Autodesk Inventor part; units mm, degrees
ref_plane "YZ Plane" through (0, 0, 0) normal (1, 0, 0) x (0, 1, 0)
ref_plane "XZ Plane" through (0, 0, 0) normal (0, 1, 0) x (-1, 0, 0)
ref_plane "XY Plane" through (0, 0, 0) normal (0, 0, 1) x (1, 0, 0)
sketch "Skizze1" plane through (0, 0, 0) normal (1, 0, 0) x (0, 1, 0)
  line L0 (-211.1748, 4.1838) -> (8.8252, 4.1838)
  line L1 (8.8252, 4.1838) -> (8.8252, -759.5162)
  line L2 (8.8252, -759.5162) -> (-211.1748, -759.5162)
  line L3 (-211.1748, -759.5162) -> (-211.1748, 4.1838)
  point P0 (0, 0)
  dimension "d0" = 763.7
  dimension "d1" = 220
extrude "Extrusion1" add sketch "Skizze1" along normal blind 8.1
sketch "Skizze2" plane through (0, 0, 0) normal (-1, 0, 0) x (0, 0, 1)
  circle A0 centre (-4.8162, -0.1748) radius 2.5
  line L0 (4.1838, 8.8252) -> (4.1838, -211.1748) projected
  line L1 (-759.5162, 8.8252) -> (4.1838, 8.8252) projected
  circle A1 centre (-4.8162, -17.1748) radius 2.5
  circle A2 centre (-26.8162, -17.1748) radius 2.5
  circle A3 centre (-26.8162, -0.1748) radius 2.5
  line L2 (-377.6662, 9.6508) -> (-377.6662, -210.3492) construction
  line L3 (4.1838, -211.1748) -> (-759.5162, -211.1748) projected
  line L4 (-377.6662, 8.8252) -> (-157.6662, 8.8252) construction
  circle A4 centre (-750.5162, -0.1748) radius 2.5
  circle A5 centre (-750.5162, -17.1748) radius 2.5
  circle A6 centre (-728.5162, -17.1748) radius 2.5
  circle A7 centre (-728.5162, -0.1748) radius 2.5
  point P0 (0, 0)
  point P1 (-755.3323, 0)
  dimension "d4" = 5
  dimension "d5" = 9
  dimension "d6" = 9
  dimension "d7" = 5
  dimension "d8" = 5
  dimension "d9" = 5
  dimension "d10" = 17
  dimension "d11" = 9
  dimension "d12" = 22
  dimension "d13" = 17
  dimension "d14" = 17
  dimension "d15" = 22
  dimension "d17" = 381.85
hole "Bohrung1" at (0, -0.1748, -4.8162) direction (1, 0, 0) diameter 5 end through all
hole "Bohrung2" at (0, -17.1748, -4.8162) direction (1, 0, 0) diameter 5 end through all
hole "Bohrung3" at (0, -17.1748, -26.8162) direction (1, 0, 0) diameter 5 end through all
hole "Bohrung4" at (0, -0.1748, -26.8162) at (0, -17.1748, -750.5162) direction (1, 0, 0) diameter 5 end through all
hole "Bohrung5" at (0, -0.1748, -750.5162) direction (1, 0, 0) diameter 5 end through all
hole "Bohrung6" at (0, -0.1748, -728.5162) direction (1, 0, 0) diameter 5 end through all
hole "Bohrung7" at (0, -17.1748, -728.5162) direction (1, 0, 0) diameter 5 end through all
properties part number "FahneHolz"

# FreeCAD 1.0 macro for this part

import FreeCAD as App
import Part
import Sketcher
from FreeCAD import Vector

doc = App.newDocument("Part")
body = doc.addObject("PartDesign::Body", "Body")

# Sketch on YZ plane
sketch1 = body.newObject("Sketcher::SketchObject", "Sketch")
sketch1.AttachmentSupport = (doc.getObject("YZ_Plane"), [""])
sketch1.MapMode = "FlatFace"
sketch1.addGeometry([
    Part.LineSegment(Vector(8.8252, 4.1838, 0), Vector(-211.1748, 4.1838, 0)),
    Part.LineSegment(Vector(-211.1748, 4.1838, 0), Vector(-211.1748, -759.5162, 0)),
    Part.LineSegment(Vector(-211.1748, -759.5162, 0), Vector(8.8252, -759.5162, 0)),
    Part.LineSegment(Vector(8.8252, -759.5162, 0), Vector(8.8252, 4.1838, 0)),
], False)
sketch1.addConstraint([
    Sketcher.Constraint("Coincident", 0, 2, 1, 1),
    Sketcher.Constraint("Coincident", 1, 2, 2, 1),
    Sketcher.Constraint("Coincident", 2, 2, 3, 1),
    Sketcher.Constraint("Coincident", 3, 2, 0, 1),
    Sketcher.Constraint("Horizontal", 0),
    Sketcher.Constraint("Vertical", 1),
    Sketcher.Constraint("Horizontal", 2),
    Sketcher.Constraint("Vertical", 3),
    Sketcher.Constraint("DistanceX", 0, 2, 0, 1, 220.0),
    Sketcher.Constraint("DistanceY", 1, 2, 1, 1, 763.7),
    Sketcher.Constraint("DistanceX", 0, 2, -1, 1, 211.1748),
    Sketcher.Constraint("DistanceY", -1, 1, 0, 2, 4.1838),
])
pad1 = body.newObject("PartDesign::Pad", "Pad")
pad1.Profile = sketch1
pad1.Length = 8.1

# Sketch on YZ plane
sketch2 = body.newObject("Sketcher::SketchObject", "Sketch001")
sketch2.AttachmentSupport = (doc.getObject("YZ_Plane"), [""])
sketch2.MapMode = "FlatFace"
sketch2.addGeometry(Part.Circle(Vector(-0.1748, -4.8162, 0), Vector(0, 0, 1), 2.5), False)
sketch2.addConstraint([
    Sketcher.Constraint("Diameter", 0, 5.0),
    Sketcher.Constraint("DistanceX", 0, 3, -1, 1, 0.1748),
    Sketcher.Constraint("DistanceY", 0, 3, -1, 1, 4.8162),
])
doc.recompute()
hole = body.newObject("PartDesign::Hole", "Hole")
hole.Profile = sketch2
hole.ThreadType = "None"
hole.Diameter = 5
hole.DepthType = "ThroughAll"
hole.Reversed = True

# Sketch on YZ plane
sketch3 = body.newObject("Sketcher::SketchObject", "Sketch002")
sketch3.AttachmentSupport = (doc.getObject("YZ_Plane"), [""])
sketch3.MapMode = "FlatFace"
sketch3.addGeometry(Part.Circle(Vector(-17.1748, -4.8162, 0), Vector(0, 0, 1), 2.5), False)
sketch3.addConstraint([
    Sketcher.Constraint("Diameter", 0, 5.0),
    Sketcher.Constraint("DistanceX", 0, 3, -1, 1, 17.1748),
    Sketcher.Constraint("DistanceY", 0, 3, -1, 1, 4.8162),
])
doc.recompute()
hole2 = body.newObject("PartDesign::Hole", "Hole001")
hole2.Profile = sketch3
hole2.ThreadType = "None"
hole2.Diameter = 5
hole2.DepthType = "ThroughAll"
hole2.Reversed = True

# Sketch on YZ plane
sketch4 = body.newObject("Sketcher::SketchObject", "Sketch003")
sketch4.AttachmentSupport = (doc.getObject("YZ_Plane"), [""])
sketch4.MapMode = "FlatFace"
sketch4.addGeometry(Part.Circle(Vector(-17.1748, -26.8162, 0), Vector(0, 0, 1), 2.5), False)
sketch4.addConstraint([
    Sketcher.Constraint("Diameter", 0, 5.0),
    Sketcher.Constraint("DistanceX", 0, 3, -1, 1, 17.1748),
    Sketcher.Constraint("DistanceY", 0, 3, -1, 1, 26.8162),
])
doc.recompute()
hole3 = body.newObject("PartDesign::Hole", "Hole002")
hole3.Profile = sketch4
hole3.ThreadType = "None"
hole3.Diameter = 5
hole3.DepthType = "ThroughAll"
hole3.Reversed = True

# Sketch on YZ plane
sketch5 = body.newObject("Sketcher::SketchObject", "Sketch004")
sketch5.AttachmentSupport = (doc.getObject("YZ_Plane"), [""])
sketch5.MapMode = "FlatFace"
sketch5.addGeometry([
    Part.Circle(Vector(-0.1748, -26.8162, 0), Vector(0, 0, 1), 2.5),
    Part.Circle(Vector(-17.1748, -750.5162, 0), Vector(0, 0, 1), 2.5),
], False)
sketch5.addConstraint([
    Sketcher.Constraint("Equal", 0, 1),
    Sketcher.Constraint("Diameter", 0, 5.0),
    Sketcher.Constraint("DistanceX", 1, 3, 0, 3, 17.0),
    Sketcher.Constraint("DistanceY", 1, 3, 0, 3, 723.7),
    Sketcher.Constraint("DistanceX", 0, 3, -1, 1, 0.1748),
    Sketcher.Constraint("DistanceY", 0, 3, -1, 1, 26.8162),
])
doc.recompute()
hole4 = body.newObject("PartDesign::Hole", "Hole003")
hole4.Profile = sketch5
hole4.ThreadType = "None"
hole4.Diameter = 5
hole4.DepthType = "ThroughAll"
hole4.Reversed = True

# Sketch on YZ plane
sketch6 = body.newObject("Sketcher::SketchObject", "Sketch005")
sketch6.AttachmentSupport = (doc.getObject("YZ_Plane"), [""])
sketch6.MapMode = "FlatFace"
sketch6.addGeometry(Part.Circle(Vector(-0.1748, -750.5162, 0), Vector(0, 0, 1), 2.5), False)
sketch6.addConstraint([
    Sketcher.Constraint("Diameter", 0, 5.0),
    Sketcher.Constraint("DistanceX", 0, 3, -1, 1, 0.1748),
    Sketcher.Constraint("DistanceY", 0, 3, -1, 1, 750.5162),
])
doc.recompute()
hole5 = body.newObject("PartDesign::Hole", "Hole004")
hole5.Profile = sketch6
hole5.ThreadType = "None"
hole5.Diameter = 5
hole5.DepthType = "ThroughAll"
hole5.Reversed = True

# Sketch on YZ plane
sketch7 = body.newObject("Sketcher::SketchObject", "Sketch006")
sketch7.AttachmentSupport = (doc.getObject("YZ_Plane"), [""])
sketch7.MapMode = "FlatFace"
sketch7.addGeometry(Part.Circle(Vector(-0.1748, -728.5162, 0), Vector(0, 0, 1), 2.5), False)
sketch7.addConstraint([
    Sketcher.Constraint("Diameter", 0, 5.0),
    Sketcher.Constraint("DistanceX", 0, 3, -1, 1, 0.1748),
    Sketcher.Constraint("DistanceY", 0, 3, -1, 1, 728.5162),
])
doc.recompute()
hole6 = body.newObject("PartDesign::Hole", "Hole005")
hole6.Profile = sketch7
hole6.ThreadType = "None"
hole6.Diameter = 5
hole6.DepthType = "ThroughAll"
hole6.Reversed = True

# Sketch on YZ plane
sketch8 = body.newObject("Sketcher::SketchObject", "Sketch007")
sketch8.AttachmentSupport = (doc.getObject("YZ_Plane"), [""])
sketch8.MapMode = "FlatFace"
sketch8.addGeometry(Part.Circle(Vector(-17.1748, -728.5162, 0), Vector(0, 0, 1), 2.5), False)
sketch8.addConstraint([
    Sketcher.Constraint("Diameter", 0, 5.0),
    Sketcher.Constraint("DistanceX", 0, 3, -1, 1, 17.1748),
    Sketcher.Constraint("DistanceY", 0, 3, -1, 1, 728.5162),
])
doc.recompute()
hole7 = body.newObject("PartDesign::Hole", "Hole006")
hole7.Profile = sketch8
hole7.ThreadType = "None"
hole7.Diameter = 5
hole7.DepthType = "ThroughAll"
hole7.Reversed = True

doc.recompute()
